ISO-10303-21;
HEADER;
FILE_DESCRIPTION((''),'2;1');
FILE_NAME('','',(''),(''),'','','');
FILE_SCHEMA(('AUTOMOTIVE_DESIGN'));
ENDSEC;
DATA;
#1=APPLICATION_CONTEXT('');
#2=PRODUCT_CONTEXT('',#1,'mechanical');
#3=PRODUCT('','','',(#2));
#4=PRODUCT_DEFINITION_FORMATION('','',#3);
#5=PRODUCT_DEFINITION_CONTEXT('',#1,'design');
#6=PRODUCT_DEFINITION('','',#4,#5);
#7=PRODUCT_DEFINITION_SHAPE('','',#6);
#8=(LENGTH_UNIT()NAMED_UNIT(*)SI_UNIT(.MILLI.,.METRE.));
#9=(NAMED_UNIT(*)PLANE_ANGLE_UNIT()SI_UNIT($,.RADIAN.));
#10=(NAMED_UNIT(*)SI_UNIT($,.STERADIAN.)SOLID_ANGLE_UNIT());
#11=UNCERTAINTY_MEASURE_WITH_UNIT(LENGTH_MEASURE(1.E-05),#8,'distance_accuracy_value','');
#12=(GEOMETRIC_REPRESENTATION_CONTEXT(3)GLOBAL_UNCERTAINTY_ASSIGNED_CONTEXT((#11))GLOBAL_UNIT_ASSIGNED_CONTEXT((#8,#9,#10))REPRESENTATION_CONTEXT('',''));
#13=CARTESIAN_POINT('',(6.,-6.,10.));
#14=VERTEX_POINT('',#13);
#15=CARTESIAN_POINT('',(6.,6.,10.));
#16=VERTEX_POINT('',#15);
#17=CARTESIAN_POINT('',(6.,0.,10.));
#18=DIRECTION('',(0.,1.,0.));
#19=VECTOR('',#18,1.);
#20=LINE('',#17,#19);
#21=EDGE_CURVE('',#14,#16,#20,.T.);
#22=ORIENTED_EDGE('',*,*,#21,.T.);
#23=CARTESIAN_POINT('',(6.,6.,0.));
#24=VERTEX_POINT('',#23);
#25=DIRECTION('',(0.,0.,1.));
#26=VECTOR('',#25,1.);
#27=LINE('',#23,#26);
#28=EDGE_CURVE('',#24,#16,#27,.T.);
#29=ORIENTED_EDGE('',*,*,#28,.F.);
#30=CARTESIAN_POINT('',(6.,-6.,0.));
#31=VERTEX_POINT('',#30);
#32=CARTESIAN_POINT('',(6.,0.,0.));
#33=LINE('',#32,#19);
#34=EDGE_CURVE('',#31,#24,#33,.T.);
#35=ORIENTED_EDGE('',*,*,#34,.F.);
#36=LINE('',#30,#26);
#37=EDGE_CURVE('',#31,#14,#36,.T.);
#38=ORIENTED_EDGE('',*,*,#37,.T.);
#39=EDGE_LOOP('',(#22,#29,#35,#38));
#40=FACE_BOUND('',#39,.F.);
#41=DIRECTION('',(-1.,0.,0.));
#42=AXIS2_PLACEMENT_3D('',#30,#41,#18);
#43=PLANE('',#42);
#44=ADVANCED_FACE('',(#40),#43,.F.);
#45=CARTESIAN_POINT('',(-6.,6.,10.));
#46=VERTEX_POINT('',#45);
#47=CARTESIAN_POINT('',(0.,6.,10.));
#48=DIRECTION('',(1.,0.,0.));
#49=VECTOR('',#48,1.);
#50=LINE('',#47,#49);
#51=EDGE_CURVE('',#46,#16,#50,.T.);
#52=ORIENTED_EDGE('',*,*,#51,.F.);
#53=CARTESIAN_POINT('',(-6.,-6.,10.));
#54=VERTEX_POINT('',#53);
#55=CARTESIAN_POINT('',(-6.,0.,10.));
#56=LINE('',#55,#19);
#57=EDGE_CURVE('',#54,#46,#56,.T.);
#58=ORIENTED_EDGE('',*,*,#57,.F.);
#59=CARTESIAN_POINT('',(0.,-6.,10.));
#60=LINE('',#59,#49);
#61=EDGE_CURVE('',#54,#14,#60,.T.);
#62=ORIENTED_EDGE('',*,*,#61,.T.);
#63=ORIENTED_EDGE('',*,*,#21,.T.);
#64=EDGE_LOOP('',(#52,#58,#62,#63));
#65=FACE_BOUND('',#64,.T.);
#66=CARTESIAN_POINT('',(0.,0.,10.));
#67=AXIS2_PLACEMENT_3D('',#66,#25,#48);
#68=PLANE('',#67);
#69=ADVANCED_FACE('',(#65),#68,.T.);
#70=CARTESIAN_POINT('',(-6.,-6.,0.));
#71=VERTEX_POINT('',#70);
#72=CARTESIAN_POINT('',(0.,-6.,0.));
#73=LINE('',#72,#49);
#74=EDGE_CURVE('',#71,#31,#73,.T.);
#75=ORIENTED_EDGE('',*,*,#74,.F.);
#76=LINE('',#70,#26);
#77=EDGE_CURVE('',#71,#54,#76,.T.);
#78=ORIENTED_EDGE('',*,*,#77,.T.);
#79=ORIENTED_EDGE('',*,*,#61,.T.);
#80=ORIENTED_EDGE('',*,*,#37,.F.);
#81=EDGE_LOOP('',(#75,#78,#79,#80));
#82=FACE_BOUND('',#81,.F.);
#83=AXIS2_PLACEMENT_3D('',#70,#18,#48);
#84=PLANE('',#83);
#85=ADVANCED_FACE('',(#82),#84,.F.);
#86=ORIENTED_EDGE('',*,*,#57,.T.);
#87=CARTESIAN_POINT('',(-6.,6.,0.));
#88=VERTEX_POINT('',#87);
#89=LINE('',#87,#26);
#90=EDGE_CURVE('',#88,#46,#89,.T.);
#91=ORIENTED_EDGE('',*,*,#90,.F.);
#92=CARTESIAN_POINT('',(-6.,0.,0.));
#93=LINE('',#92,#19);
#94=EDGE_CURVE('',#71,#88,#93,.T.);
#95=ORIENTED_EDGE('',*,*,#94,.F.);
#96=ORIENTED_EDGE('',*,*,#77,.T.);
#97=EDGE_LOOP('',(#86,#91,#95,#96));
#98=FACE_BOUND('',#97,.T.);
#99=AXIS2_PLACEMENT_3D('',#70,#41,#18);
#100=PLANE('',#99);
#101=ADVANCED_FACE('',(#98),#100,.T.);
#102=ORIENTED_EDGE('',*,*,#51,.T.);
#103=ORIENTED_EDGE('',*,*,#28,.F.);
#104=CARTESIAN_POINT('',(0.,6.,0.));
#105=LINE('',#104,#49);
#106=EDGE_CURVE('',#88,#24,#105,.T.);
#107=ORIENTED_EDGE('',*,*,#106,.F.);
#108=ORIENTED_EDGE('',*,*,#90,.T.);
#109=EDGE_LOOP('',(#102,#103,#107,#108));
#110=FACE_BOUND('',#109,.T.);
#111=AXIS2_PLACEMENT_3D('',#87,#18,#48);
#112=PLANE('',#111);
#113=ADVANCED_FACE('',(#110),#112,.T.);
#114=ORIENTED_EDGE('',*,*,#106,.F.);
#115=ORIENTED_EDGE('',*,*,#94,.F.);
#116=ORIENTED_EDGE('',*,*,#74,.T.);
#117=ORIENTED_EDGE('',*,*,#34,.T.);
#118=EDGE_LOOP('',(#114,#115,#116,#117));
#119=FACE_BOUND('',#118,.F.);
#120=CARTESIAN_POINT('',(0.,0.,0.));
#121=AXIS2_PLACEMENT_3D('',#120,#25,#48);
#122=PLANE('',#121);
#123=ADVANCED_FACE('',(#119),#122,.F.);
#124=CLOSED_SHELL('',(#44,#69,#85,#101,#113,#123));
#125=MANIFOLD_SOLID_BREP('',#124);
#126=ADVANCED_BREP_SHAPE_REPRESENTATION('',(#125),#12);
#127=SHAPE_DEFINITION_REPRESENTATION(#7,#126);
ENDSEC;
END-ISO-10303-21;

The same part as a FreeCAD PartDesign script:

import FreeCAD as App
import Part
import Sketcher
from FreeCAD import Vector

doc = App.newDocument("Part")
params = doc.addObject("Spreadsheet::Sheet", "Params")
for row, (alias, value) in enumerate([
    ("sketch1_width", "12 mm"),
    ("pad1_length", "10 mm"),
], start=1):
    params.set(f"A{row}", alias)
    params.set(f"B{row}", "=" + value)
    params.setAlias(f"B{row}", alias)

body = doc.addObject("PartDesign::Body", "Body")

sketch1 = doc.addObject("Sketcher::SketchObject", "Sketch")
body.addObject(sketch1)
sketch1.AttachmentSupport = (doc.XY_Plane, [""])
sketch1.MapMode = "FlatFace"
sketch1.addGeometry([
    Part.LineSegment(Vector(-6, 6, 0), Vector(-6, -6, 0)),
    Part.LineSegment(Vector(-6, -6, 0), Vector(6, -6, 0)),
    Part.LineSegment(Vector(6, -6, 0), Vector(6, 6, 0)),
    Part.LineSegment(Vector(6, 6, 0), Vector(-6, 6, 0)),
], False)
sketch1.addConstraint([
    Sketcher.Constraint("Coincident", 0, 2, 1, 1),
    Sketcher.Constraint("Coincident", 1, 2, 2, 1),
    Sketcher.Constraint("Coincident", 2, 2, 3, 1),
    Sketcher.Constraint("Coincident", 3, 2, 0, 1),
    Sketcher.Constraint("Vertical", 0),
    Sketcher.Constraint("Horizontal", 1),
    Sketcher.Constraint("Vertical", 2),
    Sketcher.Constraint("Horizontal", 3),
    Sketcher.Constraint("Symmetric", 0, 2, 2, 2, -1, 1),
    Sketcher.Constraint("Equal", 3, 0),
    Sketcher.Constraint("DistanceX", 1, 1, 1, 2, 12.0),
])
sketch1.setExpression("Constraints[10]", "Params.sketch1_width")
pad1 = doc.addObject("PartDesign::Pad", "Pad")
body.addObject(pad1)
pad1.Profile = sketch1
pad1.setExpression("Length", "Params.pad1_length")

doc.recompute()
